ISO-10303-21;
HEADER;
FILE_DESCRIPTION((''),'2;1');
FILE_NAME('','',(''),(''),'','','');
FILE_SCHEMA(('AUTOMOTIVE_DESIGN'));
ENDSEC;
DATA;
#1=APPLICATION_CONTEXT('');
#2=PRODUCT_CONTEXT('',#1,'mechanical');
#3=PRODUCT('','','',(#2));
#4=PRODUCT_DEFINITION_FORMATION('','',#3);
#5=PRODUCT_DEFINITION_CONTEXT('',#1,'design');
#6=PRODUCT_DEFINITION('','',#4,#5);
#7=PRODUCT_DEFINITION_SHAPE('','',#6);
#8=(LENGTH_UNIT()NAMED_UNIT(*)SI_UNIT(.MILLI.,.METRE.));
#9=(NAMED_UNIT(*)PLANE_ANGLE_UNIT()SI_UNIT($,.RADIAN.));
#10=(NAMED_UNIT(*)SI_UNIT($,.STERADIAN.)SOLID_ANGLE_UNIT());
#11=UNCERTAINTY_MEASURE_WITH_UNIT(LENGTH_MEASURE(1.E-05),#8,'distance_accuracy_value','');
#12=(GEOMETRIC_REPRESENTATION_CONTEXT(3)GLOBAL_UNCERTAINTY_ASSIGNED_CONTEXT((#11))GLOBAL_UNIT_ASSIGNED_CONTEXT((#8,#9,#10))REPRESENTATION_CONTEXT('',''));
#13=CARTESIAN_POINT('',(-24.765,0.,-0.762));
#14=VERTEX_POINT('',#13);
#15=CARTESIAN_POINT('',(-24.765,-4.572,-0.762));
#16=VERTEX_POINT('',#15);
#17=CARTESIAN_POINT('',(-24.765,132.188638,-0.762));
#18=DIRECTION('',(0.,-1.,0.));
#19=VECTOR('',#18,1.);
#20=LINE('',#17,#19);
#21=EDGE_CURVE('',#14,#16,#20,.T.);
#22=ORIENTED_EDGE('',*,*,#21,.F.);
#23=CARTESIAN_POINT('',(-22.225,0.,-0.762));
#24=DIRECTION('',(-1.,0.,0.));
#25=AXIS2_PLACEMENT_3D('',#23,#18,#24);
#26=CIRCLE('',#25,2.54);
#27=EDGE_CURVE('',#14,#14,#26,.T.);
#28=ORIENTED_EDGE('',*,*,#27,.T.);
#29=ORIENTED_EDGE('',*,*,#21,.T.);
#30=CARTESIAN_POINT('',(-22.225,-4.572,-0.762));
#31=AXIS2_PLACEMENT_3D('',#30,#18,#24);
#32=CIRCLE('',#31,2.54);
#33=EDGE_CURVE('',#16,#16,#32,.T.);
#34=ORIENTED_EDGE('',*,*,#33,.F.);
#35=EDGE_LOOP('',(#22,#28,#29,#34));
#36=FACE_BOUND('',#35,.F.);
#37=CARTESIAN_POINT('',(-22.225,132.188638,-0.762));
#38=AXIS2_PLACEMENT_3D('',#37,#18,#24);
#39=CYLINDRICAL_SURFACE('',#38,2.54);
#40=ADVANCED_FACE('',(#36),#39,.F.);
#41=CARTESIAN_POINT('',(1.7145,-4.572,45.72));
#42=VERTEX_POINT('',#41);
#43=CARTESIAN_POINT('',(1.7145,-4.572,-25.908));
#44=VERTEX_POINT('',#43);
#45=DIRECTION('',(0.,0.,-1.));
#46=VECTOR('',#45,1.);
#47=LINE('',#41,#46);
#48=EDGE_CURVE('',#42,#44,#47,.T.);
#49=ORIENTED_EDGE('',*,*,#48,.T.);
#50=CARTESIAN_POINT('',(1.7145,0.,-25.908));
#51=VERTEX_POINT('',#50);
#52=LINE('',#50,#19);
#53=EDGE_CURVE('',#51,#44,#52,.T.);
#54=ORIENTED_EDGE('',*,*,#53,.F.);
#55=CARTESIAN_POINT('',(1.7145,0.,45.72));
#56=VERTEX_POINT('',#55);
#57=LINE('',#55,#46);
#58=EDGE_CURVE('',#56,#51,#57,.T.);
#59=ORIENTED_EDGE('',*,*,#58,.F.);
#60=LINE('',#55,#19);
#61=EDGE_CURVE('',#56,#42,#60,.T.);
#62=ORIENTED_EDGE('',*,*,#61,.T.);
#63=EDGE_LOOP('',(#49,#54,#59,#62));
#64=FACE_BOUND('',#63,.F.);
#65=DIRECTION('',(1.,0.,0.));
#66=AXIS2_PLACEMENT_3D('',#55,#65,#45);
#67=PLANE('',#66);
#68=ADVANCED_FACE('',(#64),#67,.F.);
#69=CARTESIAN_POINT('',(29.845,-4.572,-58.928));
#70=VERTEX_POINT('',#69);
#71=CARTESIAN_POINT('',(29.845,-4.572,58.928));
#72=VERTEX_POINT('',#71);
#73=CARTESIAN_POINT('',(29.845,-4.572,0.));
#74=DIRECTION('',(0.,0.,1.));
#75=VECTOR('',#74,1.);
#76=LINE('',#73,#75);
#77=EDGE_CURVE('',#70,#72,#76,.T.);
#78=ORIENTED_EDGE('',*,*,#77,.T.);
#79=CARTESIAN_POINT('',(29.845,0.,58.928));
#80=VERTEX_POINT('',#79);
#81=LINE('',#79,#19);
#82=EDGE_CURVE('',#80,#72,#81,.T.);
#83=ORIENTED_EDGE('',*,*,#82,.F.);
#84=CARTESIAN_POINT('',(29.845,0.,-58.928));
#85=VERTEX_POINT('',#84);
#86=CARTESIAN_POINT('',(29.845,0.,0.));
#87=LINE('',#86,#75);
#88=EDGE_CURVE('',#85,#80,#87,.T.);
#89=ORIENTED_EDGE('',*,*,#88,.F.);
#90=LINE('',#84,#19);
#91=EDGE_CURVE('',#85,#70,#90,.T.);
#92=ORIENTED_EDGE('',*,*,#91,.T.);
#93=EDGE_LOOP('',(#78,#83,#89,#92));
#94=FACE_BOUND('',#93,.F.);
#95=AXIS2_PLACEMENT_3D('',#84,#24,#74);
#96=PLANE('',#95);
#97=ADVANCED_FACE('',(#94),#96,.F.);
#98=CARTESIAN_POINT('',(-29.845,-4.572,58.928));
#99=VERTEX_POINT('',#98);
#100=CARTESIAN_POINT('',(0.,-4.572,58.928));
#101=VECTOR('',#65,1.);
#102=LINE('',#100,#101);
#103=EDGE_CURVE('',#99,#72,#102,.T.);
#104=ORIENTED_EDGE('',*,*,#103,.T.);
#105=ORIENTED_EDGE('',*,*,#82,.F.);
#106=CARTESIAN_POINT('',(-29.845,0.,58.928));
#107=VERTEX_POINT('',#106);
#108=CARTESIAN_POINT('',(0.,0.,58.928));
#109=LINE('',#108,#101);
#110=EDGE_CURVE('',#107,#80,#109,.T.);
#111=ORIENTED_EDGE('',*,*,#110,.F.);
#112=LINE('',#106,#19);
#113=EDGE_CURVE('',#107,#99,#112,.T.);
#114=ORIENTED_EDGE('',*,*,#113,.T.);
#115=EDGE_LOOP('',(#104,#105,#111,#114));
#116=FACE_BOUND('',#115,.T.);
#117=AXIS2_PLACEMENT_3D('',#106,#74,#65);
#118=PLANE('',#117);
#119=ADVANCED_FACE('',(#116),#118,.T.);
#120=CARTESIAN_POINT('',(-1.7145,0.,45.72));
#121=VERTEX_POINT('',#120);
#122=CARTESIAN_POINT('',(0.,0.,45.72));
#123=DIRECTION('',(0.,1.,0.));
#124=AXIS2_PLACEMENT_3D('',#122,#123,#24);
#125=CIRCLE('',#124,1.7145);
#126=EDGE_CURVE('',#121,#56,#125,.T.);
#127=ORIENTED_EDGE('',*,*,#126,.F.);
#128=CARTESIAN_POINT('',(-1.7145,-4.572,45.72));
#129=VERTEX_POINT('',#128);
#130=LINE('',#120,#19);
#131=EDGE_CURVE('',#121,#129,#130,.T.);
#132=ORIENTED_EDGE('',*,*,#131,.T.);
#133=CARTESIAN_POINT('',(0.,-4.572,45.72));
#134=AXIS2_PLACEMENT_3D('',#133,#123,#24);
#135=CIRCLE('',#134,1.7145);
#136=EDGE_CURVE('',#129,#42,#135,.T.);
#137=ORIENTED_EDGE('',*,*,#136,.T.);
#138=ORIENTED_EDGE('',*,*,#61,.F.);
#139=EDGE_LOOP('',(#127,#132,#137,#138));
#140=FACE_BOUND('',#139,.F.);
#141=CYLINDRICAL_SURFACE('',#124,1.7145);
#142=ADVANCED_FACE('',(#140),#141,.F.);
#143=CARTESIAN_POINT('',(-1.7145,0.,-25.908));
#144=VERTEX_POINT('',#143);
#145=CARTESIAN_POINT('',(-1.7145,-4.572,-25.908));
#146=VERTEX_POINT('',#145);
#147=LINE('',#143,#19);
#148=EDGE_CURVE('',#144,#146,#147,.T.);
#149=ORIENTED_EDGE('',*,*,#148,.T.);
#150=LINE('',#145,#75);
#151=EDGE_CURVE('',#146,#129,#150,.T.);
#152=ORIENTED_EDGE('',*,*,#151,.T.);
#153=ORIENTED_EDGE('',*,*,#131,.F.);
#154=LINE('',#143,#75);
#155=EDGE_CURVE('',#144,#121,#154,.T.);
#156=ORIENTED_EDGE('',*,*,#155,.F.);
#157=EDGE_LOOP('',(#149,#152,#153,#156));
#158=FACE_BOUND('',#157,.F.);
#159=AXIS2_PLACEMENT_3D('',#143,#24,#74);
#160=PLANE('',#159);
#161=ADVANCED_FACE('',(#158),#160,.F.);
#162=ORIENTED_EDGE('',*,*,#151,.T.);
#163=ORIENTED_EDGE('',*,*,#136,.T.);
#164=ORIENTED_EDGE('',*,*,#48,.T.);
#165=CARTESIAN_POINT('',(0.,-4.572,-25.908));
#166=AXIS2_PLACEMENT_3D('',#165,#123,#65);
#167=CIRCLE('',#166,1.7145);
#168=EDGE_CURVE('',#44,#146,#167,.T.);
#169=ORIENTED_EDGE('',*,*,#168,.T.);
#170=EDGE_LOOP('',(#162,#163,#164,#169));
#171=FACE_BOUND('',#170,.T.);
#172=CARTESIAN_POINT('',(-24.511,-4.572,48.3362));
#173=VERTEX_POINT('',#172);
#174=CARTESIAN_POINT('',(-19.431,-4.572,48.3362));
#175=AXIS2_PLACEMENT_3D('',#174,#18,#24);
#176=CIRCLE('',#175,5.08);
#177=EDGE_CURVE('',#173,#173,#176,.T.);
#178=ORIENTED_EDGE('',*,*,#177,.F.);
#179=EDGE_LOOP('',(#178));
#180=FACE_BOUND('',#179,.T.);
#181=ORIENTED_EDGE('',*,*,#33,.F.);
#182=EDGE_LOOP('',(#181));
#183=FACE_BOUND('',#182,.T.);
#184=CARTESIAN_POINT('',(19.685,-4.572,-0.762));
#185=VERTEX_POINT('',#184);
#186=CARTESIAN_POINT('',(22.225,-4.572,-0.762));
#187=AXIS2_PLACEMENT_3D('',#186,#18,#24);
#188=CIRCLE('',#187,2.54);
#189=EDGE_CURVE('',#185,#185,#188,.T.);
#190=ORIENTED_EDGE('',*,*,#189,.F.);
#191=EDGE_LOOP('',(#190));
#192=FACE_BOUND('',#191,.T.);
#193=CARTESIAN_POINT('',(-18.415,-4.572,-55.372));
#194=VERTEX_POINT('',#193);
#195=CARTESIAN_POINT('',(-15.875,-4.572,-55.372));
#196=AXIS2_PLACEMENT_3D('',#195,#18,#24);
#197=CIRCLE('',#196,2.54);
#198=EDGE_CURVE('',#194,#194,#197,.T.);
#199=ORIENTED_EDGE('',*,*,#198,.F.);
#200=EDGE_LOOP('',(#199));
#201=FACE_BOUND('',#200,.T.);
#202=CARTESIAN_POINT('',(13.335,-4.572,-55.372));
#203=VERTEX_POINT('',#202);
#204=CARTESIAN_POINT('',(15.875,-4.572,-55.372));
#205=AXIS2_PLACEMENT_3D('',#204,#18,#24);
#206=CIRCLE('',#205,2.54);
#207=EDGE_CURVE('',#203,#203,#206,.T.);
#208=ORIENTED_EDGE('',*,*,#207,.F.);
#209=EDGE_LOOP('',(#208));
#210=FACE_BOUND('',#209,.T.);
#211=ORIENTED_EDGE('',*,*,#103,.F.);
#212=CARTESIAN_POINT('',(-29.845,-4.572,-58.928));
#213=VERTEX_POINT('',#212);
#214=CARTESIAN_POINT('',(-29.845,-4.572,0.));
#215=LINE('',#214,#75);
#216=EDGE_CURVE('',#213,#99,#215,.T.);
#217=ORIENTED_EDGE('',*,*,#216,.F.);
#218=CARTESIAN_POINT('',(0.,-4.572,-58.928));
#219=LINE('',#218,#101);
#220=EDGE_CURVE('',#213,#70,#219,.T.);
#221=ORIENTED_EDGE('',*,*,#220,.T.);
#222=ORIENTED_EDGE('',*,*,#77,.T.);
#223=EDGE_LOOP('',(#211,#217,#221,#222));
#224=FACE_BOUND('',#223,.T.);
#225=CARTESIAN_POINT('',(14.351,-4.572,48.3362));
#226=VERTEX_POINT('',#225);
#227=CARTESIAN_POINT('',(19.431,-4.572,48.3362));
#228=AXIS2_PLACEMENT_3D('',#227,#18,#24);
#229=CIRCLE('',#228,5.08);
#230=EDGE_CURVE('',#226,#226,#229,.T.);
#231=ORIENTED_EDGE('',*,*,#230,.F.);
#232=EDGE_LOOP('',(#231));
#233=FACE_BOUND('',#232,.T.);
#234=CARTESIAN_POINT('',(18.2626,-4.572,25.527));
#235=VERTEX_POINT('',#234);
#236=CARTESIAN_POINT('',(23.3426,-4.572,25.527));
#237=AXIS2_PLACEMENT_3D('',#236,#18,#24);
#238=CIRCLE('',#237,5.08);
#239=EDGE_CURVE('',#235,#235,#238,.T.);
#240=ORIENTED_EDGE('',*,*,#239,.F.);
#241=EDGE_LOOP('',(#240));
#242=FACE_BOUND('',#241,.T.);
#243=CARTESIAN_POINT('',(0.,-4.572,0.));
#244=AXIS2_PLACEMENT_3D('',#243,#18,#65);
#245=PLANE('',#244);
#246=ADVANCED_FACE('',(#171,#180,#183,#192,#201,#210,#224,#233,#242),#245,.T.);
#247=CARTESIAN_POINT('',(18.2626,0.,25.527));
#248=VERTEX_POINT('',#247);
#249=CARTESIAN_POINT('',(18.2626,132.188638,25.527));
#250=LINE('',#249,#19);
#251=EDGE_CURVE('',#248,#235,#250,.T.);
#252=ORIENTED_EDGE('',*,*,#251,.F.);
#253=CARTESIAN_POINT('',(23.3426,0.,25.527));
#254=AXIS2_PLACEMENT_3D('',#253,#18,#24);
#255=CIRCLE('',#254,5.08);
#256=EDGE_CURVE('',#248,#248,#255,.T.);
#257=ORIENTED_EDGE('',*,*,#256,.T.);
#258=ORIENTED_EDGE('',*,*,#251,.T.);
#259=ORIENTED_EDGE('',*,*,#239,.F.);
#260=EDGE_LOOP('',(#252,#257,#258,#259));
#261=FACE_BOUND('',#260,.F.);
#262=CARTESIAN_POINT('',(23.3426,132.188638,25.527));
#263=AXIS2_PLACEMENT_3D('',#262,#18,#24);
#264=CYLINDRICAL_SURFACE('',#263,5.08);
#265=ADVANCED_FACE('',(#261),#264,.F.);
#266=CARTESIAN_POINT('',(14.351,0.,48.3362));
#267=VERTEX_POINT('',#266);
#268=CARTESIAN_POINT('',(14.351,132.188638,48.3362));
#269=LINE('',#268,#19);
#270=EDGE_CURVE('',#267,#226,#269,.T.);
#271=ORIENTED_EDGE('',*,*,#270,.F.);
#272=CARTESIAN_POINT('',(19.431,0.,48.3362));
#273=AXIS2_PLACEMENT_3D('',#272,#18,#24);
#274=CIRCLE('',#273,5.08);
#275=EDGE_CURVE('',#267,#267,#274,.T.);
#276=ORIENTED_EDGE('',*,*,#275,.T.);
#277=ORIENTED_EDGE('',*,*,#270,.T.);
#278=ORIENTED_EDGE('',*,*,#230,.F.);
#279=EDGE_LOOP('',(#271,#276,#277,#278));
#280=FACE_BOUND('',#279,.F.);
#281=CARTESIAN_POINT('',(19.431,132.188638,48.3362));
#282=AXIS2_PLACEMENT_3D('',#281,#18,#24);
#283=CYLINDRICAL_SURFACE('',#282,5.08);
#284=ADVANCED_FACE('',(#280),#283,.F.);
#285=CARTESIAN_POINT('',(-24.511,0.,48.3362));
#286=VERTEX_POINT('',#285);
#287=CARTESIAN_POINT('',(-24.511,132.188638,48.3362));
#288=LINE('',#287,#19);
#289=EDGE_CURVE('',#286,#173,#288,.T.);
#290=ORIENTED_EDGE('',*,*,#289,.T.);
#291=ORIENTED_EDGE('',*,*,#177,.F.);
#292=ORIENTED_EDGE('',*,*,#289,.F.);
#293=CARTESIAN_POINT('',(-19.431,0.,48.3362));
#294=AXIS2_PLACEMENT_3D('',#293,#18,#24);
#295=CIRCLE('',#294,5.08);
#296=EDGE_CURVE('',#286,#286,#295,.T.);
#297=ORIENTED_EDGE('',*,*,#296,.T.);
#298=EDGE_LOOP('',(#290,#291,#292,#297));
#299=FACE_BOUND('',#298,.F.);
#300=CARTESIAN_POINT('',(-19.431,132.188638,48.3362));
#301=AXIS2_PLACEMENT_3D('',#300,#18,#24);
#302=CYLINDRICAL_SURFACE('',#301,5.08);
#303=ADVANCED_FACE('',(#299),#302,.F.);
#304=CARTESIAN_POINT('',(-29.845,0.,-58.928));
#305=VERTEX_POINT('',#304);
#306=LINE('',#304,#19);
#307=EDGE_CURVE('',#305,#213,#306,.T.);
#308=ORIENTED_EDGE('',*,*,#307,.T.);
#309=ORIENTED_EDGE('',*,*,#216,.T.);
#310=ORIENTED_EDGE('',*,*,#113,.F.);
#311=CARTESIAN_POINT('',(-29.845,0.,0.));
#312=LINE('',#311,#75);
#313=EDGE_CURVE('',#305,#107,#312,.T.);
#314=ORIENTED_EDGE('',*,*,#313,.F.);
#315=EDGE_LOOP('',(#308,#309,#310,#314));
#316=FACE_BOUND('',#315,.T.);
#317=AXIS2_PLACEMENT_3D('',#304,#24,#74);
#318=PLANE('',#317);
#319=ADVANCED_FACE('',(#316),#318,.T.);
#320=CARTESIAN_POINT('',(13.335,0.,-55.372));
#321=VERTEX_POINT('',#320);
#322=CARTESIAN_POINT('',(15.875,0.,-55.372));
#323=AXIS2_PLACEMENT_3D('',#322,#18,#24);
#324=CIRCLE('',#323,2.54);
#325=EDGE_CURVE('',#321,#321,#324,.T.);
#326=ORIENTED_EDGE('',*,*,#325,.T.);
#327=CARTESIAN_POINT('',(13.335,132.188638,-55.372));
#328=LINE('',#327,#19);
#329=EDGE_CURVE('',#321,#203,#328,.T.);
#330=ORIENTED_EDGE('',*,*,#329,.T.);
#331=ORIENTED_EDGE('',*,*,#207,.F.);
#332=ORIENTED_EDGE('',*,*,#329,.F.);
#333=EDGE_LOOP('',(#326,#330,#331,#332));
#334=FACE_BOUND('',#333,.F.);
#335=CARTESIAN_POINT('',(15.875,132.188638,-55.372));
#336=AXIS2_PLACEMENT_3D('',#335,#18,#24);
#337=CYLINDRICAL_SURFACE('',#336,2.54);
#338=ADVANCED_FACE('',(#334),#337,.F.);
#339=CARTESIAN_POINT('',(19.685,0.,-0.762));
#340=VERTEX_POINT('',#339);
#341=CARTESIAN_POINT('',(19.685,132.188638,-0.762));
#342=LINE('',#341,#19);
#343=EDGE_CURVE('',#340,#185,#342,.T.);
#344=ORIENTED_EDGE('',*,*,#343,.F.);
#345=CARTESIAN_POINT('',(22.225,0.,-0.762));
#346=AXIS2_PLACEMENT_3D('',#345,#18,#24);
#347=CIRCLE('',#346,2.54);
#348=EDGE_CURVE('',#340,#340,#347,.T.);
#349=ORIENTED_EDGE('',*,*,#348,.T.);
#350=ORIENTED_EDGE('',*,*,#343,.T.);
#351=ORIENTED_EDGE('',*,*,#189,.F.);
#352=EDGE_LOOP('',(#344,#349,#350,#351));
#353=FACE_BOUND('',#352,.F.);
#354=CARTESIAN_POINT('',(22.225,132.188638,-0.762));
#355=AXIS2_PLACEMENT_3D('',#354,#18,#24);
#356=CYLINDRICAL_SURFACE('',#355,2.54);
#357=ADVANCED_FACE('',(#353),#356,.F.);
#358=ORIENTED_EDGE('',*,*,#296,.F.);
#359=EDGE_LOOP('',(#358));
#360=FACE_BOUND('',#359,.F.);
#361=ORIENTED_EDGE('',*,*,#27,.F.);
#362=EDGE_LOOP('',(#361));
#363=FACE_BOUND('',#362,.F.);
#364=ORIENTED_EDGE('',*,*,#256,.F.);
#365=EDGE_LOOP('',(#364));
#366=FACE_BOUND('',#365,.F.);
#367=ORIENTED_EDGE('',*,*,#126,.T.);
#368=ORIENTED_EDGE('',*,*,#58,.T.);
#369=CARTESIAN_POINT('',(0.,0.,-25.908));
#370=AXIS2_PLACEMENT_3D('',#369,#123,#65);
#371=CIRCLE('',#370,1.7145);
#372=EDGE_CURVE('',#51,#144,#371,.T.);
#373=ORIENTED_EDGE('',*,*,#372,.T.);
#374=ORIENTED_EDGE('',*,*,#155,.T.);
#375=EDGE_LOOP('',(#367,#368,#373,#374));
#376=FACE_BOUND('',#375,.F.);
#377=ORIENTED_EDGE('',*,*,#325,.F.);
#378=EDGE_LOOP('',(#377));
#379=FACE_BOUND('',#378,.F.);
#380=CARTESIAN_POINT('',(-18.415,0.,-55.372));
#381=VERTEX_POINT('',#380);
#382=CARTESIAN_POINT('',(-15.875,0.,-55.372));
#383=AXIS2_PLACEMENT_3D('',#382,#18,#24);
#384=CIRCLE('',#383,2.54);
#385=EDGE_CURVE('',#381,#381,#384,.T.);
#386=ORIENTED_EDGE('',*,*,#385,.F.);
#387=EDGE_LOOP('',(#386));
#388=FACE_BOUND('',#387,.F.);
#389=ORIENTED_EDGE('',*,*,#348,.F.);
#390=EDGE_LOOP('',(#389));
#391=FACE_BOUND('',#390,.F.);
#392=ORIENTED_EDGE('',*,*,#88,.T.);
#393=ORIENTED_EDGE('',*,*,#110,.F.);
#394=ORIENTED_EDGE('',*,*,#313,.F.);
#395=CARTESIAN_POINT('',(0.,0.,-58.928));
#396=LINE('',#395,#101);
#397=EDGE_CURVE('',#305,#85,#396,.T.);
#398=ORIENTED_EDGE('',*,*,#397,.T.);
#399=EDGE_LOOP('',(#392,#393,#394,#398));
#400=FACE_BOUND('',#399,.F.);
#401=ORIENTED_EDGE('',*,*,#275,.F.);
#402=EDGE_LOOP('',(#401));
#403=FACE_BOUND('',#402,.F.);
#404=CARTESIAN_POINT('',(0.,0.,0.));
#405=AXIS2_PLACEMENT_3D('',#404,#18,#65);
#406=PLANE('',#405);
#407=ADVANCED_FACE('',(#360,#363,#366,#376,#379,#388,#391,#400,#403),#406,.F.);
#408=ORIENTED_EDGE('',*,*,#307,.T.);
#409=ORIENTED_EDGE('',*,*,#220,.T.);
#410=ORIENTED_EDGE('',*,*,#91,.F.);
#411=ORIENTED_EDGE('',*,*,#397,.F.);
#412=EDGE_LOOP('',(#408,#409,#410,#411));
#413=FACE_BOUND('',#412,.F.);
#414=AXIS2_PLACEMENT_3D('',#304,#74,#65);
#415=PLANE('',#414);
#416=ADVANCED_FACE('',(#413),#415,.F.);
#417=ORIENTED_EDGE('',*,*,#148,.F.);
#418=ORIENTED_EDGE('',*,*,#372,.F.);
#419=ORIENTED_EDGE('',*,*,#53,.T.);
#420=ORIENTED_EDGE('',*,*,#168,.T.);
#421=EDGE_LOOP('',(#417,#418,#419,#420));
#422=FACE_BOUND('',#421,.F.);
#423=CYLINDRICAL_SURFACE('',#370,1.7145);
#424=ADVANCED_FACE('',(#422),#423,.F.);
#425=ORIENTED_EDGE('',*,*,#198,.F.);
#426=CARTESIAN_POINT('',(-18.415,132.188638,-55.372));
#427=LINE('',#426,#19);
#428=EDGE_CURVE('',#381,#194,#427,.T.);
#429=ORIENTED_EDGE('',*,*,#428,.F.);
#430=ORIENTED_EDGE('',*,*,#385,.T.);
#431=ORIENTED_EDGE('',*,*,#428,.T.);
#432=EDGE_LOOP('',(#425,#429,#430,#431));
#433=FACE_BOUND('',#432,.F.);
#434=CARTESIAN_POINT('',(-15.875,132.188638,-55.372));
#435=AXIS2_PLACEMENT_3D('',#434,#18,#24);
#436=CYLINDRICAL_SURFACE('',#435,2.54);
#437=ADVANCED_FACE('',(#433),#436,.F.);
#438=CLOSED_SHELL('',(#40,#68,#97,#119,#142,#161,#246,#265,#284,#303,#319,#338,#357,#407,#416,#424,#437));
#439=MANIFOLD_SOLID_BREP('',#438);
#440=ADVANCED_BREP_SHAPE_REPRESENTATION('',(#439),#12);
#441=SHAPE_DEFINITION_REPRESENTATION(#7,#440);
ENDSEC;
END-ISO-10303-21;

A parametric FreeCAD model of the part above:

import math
import FreeCAD as App
import Part
import Sketcher
Q = App.Units.Quantity


def add_polygon(sketch, points):
    """Adds a closed chain of lines whose ends are joined by coincident constraints."""
    first, n = sketch.GeometryCount, len(points)
    for a, b in zip(points, points[1:] + points[:1]):
        sketch.addGeometry(Part.LineSegment(App.Vector(*a, 0), App.Vector(*b, 0)), False)
    for i in range(n):
        sketch.addConstraint(Sketcher.Constraint("Coincident", first + i, 2, first + (i + 1) % n, 1))

doc = App.newDocument("Part")
params = doc.addObject("Spreadsheet::Sheet", "Params")
for row, (alias, value) in enumerate([
    ("sketch1_width", "2.35 in"),
    ("sketch1_height", "4.64 in"),
    ("sketch1_height2", "2.82 in"),
    ("pad1_length", "0.18 in"),
    ("sketch2_diameter", "0.4 in"),
    ("hole_diameter", "0.4 in"),
    ("sketch3_diameter", "0.2 in"),
    ("hole2_diameter", "0.2 in"),
], start=1):
    params.set(f"A{row}", alias)
    params.set(f"B{row}", "=" + value)
    params.setAlias(f"B{row}", alias)

body = doc.addObject("PartDesign::Body", "Body")

# Sketch on XZ plane
sketch1 = body.newObject("Sketcher::SketchObject", "Sketch")
sketch1.AttachmentSupport = (doc.getObject("XZ_Plane"), [""])
sketch1.MapMode = "FlatFace"
add_polygon(sketch1, [(-29.845, 58.928), (-29.845, -58.928), (29.845, -58.928), (29.845, 58.928)])  # lines 0-3
sketch1.addGeometry(Part.LineSegment(App.Vector(-1.7145, -25.908, 0), App.Vector(-1.7145, 45.72, 0)), False)  # 4
sketch1.addGeometry(Part.ArcOfCircle(Part.Circle(App.Vector(0, 45.72, 0), App.Vector(0, 0, 1), 1.7145), math.radians(0), math.radians(180)), False)  # 5
sketch1.addGeometry(Part.LineSegment(App.Vector(1.7145, 45.72, 0), App.Vector(1.7145, -25.908, 0)), False)  # 6
sketch1.addGeometry(Part.ArcOfCircle(Part.Circle(App.Vector(0, -25.908, 0), App.Vector(0, 0, 1), 1.7145), math.radians(180), math.radians(360)), False)  # 7
sketch1.addConstraint([
    Sketcher.Constraint("Tangent", 4, 2, 5, 2),
    Sketcher.Constraint("Tangent", 5, 1, 6, 1),
    Sketcher.Constraint("Tangent", 6, 2, 7, 2),
    Sketcher.Constraint("Tangent", 7, 1, 4, 1),
    Sketcher.Constraint("Vertical", 0),
    Sketcher.Constraint("Horizontal", 1),
    Sketcher.Constraint("Vertical", 2),
    Sketcher.Constraint("Horizontal", 3),
    Sketcher.Constraint("Vertical", 4),
    Sketcher.Constraint("Vertical", 6),
    Sketcher.Constraint("Symmetric", 0, 2, 2, 2, -1, 1),
    Sketcher.Constraint("PointOnObject", 5, 3, -2),
    Sketcher.Constraint("DistanceX", 1, 1, 1, 2, Q("2.35 in")),
    Sketcher.Constraint("DistanceY", 0, 2, 0, 1, Q("4.64 in")),
    Sketcher.Constraint("DistanceY", 4, 1, 4, 2, Q("2.82 in")),
    Sketcher.Constraint("DistanceY", -1, 1, 5, 3, Q("1.8 in")),
    Sketcher.Constraint("Radius", 5, Q("0.0675 in")),
])
sketch1.setExpression("Constraints[16]", "Params.sketch1_width")
sketch1.setExpression("Constraints[17]", "Params.sketch1_height")
sketch1.setExpression("Constraints[18]", "Params.sketch1_height2")
pad1 = body.newObject("PartDesign::Pad", "Pad")
pad1.Profile = sketch1
pad1.setExpression("Length", "Params.pad1_length")

# Sketch on XZ plane
sketch2 = body.newObject("Sketcher::SketchObject", "Sketch001")
sketch2.AttachmentSupport = (doc.getObject("XZ_Plane"), [""])
sketch2.MapMode = "FlatFace"
sketch2.addGeometry([
    Part.Circle(App.Vector(-19.431, 48.3362, 0), App.Vector(0, 0, 1), 5.08),
    Part.Circle(App.Vector(19.431, 48.3362, 0), App.Vector(0, 0, 1), 5.08),
    Part.Circle(App.Vector(23.3426, 25.527, 0), App.Vector(0, 0, 1), 5.08),
], False)
sketch2.addConstraint([
    Sketcher.Constraint("Equal", 0, 1),
    Sketcher.Constraint("Equal", 1, 2),
    Sketcher.Constraint("Symmetric", 0, 3, 1, 3, -2),
    Sketcher.Constraint("Diameter", 0, Q("0.4 in")),
    Sketcher.Constraint("DistanceX", 0, 3, 1, 3, Q("1.53 in")),
    Sketcher.Constraint("DistanceY", -1, 1, 0, 3, Q("1.903 in")),
    Sketcher.Constraint("DistanceX", -1, 1, 2, 3, Q("0.919 in")),
    Sketcher.Constraint("DistanceY", -1, 1, 2, 3, Q("1.005 in")),
])
sketch2.setExpression("Constraints[3]", "Params.sketch2_diameter")
doc.recompute()
hole = body.newObject("PartDesign::Hole", "Hole")
hole.Profile = sketch2
hole.ThreadType = "None"
hole.setExpression("Diameter", "Params.hole_diameter")
hole.DepthType = "ThroughAll"
hole.Reversed = True

# Sketch on XZ plane
sketch3 = body.newObject("Sketcher::SketchObject", "Sketch002")
sketch3.AttachmentSupport = (doc.getObject("XZ_Plane"), [""])
sketch3.MapMode = "FlatFace"
sketch3.addGeometry([
    Part.Circle(App.Vector(-22.225, -0.762, 0), App.Vector(0, 0, 1), 2.54),
    Part.Circle(App.Vector(22.225, -0.762, 0), App.Vector(0, 0, 1), 2.54),
    Part.Circle(App.Vector(-15.875, -55.372, 0), App.Vector(0, 0, 1), 2.54),
    Part.Circle(App.Vector(15.875, -55.372, 0), App.Vector(0, 0, 1), 2.54),
], False)
sketch3.addConstraint([
    Sketcher.Constraint("Equal", 0, 1),
    Sketcher.Constraint("Equal", 1, 2),
    Sketcher.Constraint("Equal", 2, 3),
    Sketcher.Constraint("Symmetric", 0, 3, 1, 3, -2),
    Sketcher.Constraint("Symmetric", 2, 3, 3, 3, -2),
    Sketcher.Constraint("Diameter", 0, Q("0.2 in")),
    Sketcher.Constraint("DistanceX", 2, 3, 1, 3, Q("1.5 in")),
    Sketcher.Constraint("DistanceY", 0, 3, -1, 1, Q("0.03 in")),
    Sketcher.Constraint("DistanceY", 2, 3, -1, 1, Q("2.18 in")),
    Sketcher.Constraint("DistanceX", 0, 3, 1, 3, Q("1.75 in")),
])
sketch3.setExpression("Constraints[5]", "Params.sketch3_diameter")
doc.recompute()
hole2 = body.newObject("PartDesign::Hole", "Hole001")
hole2.Profile = sketch3
hole2.ThreadType = "None"
hole2.setExpression("Diameter", "Params.hole2_diameter")
hole2.DepthType = "ThroughAll"
hole2.Reversed = True

doc.recompute()
